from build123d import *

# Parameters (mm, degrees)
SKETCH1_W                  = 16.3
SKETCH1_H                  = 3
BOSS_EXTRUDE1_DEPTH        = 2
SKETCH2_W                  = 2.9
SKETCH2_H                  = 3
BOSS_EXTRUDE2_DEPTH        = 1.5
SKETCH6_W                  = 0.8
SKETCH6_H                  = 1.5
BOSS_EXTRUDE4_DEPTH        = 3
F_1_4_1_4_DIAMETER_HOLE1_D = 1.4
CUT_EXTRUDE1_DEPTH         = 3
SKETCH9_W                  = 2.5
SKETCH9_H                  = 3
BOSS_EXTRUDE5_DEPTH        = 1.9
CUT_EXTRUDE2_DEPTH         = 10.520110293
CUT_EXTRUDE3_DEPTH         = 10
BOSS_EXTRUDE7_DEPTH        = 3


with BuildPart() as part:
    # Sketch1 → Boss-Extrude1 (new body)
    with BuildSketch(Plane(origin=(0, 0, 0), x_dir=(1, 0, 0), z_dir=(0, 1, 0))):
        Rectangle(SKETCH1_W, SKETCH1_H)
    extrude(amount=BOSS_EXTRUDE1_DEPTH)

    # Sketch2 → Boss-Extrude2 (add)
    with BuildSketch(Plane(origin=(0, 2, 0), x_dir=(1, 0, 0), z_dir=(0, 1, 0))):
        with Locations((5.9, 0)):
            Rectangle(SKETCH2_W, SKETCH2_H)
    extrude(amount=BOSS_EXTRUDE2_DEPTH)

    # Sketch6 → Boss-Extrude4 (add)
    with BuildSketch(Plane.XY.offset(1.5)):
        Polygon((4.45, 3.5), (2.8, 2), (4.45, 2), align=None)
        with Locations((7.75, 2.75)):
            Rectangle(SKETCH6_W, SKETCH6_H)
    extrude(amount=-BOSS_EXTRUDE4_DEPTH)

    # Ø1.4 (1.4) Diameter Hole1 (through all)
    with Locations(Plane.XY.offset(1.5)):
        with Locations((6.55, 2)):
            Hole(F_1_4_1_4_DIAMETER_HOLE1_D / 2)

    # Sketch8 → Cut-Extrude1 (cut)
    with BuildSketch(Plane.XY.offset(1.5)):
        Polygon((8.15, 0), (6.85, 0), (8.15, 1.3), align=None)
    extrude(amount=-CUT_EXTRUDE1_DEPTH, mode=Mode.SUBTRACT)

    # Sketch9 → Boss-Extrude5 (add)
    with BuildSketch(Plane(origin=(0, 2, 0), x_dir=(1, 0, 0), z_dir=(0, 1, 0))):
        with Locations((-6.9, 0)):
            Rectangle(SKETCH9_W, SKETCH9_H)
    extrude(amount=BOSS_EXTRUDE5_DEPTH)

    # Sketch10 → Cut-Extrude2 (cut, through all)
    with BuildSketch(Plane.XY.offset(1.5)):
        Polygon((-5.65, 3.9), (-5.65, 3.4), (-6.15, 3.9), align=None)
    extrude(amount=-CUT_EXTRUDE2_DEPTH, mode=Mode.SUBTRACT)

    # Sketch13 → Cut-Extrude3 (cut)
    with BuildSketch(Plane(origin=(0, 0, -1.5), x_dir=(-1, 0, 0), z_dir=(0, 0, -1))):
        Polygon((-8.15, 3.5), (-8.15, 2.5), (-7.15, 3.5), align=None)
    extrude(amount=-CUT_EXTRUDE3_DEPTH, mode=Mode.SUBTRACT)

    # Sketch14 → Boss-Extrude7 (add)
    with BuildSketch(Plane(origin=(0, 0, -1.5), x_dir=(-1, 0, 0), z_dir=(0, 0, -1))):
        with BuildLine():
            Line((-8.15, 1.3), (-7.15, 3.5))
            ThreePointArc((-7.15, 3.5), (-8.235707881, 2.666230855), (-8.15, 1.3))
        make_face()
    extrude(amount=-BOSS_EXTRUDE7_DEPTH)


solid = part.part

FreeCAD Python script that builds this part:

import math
import FreeCAD as App
import Part
import Sketcher


def add_polygon(sketch, points):
    """Adds a closed chain of lines whose ends are joined by coincident constraints."""
    first, n = sketch.GeometryCount, len(points)
    for a, b in zip(points, points[1:] + points[:1]):
        sketch.addGeometry(Part.LineSegment(App.Vector(*a, 0), App.Vector(*b, 0)), False)
    for i in range(n):
        sketch.addConstraint(Sketcher.Constraint("Coincident", first + i, 2, first + (i + 1) % n, 1))

doc = App.newDocument("Part")
body = doc.addObject("PartDesign::Body", "Body")

sketch1 = doc.addObject("Sketcher::SketchObject", "Sketch")
body.addObject(sketch1)
sketch1.AttachmentSupport = (doc.XZ_Plane, [""])
sketch1.MapMode = "FlatFace"
add_polygon(sketch1, [(-8.2, -1.5), (-8.2, 1.5), (8.2, 1.5), (8.2, -1.5)])
sketch1.addConstraint(Sketcher.Constraint("Vertical", 0))
sketch1.addConstraint(Sketcher.Constraint("Horizontal", 1))
sketch1.addConstraint(Sketcher.Constraint("Vertical", 2))
sketch1.addConstraint(Sketcher.Constraint("Horizontal", 3))
sketch1.addConstraint(Sketcher.Constraint("Symmetric", 0, 2, 2, 2, -1, 1))
sketch1.addConstraint(Sketcher.Constraint("DistanceY", 0, 1, 0, 2, 3.0))
sketch1.addConstraint(Sketcher.Constraint("DistanceX", 1, 1, 1, 2, 16.3))
pad1 = doc.addObject("PartDesign::Pad", "Pad")
body.addObject(pad1)
pad1.Profile = sketch1
pad1.Length = 2
pad1.Reversed = True

sketch2 = doc.addObject("Sketcher::SketchObject", "Sketch001")
body.addObject(sketch2)
sketch2.AttachmentSupport = (doc.XZ_Plane, [""])
sketch2.MapMode = "FlatFace"
sketch2.AttachmentOffset = App.Placement(App.Vector(0, 0, -2), App.Rotation())
add_polygon(sketch2, [(4.5, -1.5), (4.5, 1.5), (7.3, 1.5), (7.3, -1.5)])
sketch2.addConstraint(Sketcher.Constraint("Vertical", 0))
sketch2.addConstraint(Sketcher.Constraint("Horizontal", 1))
sketch2.addConstraint(Sketcher.Constraint("Vertical", 2))
sketch2.addConstraint(Sketcher.Constraint("Horizontal", 3))
sketch2.addConstraint(Sketcher.Constraint("DistanceY", 0, 1, 0, 2, 3.0))
sketch2.addConstraint(Sketcher.Constraint("DistanceX", 1, 1, 1, 2, 2.9))
sketch2.addConstraint(Sketcher.Constraint("DistanceY", -1, 1, 0, 2, 1.5))
sketch2.addConstraint(Sketcher.Constraint("DistanceX", -1, 1, 0, 2, 4.45))
pad2 = doc.addObject("PartDesign::Pad", "Pad001")
body.addObject(pad2)
pad2.Profile = sketch2
pad2.Length = 1.5
pad2.Reversed = True

sketch3 = doc.addObject("Sketcher::SketchObject", "Sketch002")
body.addObject(sketch3)
sketch3.AttachmentSupport = (doc.XY_Plane, [""])
sketch3.MapMode = "FlatFace"
sketch3.AttachmentOffset = App.Placement(App.Vector(0, 0, 1.5), App.Rotation())
add_polygon(sketch3, [(4.5, 3.5), (2.8, 2), (4.5, 2)])
add_polygon(sketch3, [(7.3, 3.5), (7.3, 2), (8.2, 2), (8.2, 3.5)])
sketch3.addConstraint(Sketcher.Constraint("Horizontal", 1))
sketch3.addConstraint(Sketcher.Constraint("Vertical", 2))
sketch3.addConstraint(Sketcher.Constraint("Vertical", 3))
sketch3.addConstraint(Sketcher.Constraint("Horizontal", 4))
sketch3.addConstraint(Sketcher.Constraint("Vertical", 5))
sketch3.addConstraint(Sketcher.Constraint("Horizontal", 6))
sketch3.addConstraint(Sketcher.Constraint("Horizontal", 1, 2, 3, 2))
sketch3.addConstraint(Sketcher.Constraint("Horizontal", 2, 2, 5, 2))
sketch3.addConstraint(Sketcher.Constraint("DistanceX", 4, 1, 4, 2, 0.8))
sketch3.addConstraint(Sketcher.Constraint("DistanceY", 2, 1, 2, 2, 1.5))
sketch3.addConstraint(Sketcher.Constraint("DistanceY", -1, 1, 0, 2, 2.0))
sketch3.addConstraint(Sketcher.Constraint("DistanceX", 1, 1, 1, 2, 1.65))
sketch3.addConstraint(Sketcher.Constraint("DistanceX", -1, 1, 0, 2, 2.8))
sketch3.addConstraint(Sketcher.Constraint("DistanceX", 1, 2, 3, 2, 2.9))
pad3 = doc.addObject("PartDesign::Pad", "Pad002")
body.addObject(pad3)
pad3.Profile = sketch3
pad3.Length = 3
pad3.Reversed = True

sketch4 = doc.addObject("Sketcher::SketchObject", "Sketch003")
body.addObject(sketch4)
sketch4.AttachmentSupport = (doc.XY_Plane, [""])
sketch4.MapMode = "FlatFace"
sketch4.AttachmentOffset = App.Placement(App.Vector(0, 0, 1.5), App.Rotation())
sketch4.addGeometry(Part.Circle(App.Vector(6.5, 2, 0), App.Vector(0, 0, 1), 0.7), False)
sketch4.addConstraint(Sketcher.Constraint("Diameter", 0, 1.4))
sketch4.addConstraint(Sketcher.Constraint("DistanceY", -1, 1, 0, 3, 2.0))
sketch4.addConstraint(Sketcher.Constraint("DistanceX", -1, 1, 0, 3, 6.55))
doc.recompute()
hole = doc.addObject("PartDesign::Hole", "Hole")
body.addObject(hole)
hole.Profile = sketch4
hole.ThreadType = "None"
hole.Diameter = 1.4
hole.DepthType = "ThroughAll"

sketch5 = doc.addObject("Sketcher::SketchObject", "Sketch004")
body.addObject(sketch5)
sketch5.AttachmentSupport = (doc.XY_Plane, [""])
sketch5.MapMode = "FlatFace"
sketch5.AttachmentOffset = App.Placement(App.Vector(0, 0, 1.5), App.Rotation())
add_polygon(sketch5, [(6.8, 0), (8.2, 0), (8.2, 1.3)])
sketch5.addConstraint(Sketcher.Constraint("Horizontal", 0))
sketch5.addConstraint(Sketcher.Constraint("Vertical", 1))
sketch5.addConstraint(Sketcher.Constraint("PointOnObject", 0, 2, -1))
sketch5.addConstraint(Sketcher.Constraint("Equal", 0, 1))
sketch5.addConstraint(Sketcher.Constraint("DistanceX", 0, 1, 0, 2, 1.3))
sketch5.addConstraint(Sketcher.Constraint("DistanceX", -1, 1, 0, 2, 8.15))
pocket1 = doc.addObject("PartDesign::Pocket", "Pocket")
body.addObject(pocket1)
pocket1.Profile = sketch5
pocket1.Length = 3

sketch6 = doc.addObject("Sketcher::SketchObject", "Sketch005")
body.addObject(sketch6)
sketch6.AttachmentSupport = (doc.XZ_Plane, [""])
sketch6.MapMode = "FlatFace"
sketch6.AttachmentOffset = App.Placement(App.Vector(0, 0, -2), App.Rotation())
add_polygon(sketch6, [(-8.2, -1.5), (-8.2, 1.5), (-5.7, 1.5), (-5.7, -1.5)])
sketch6.addConstraint(Sketcher.Constraint("Vertical", 0))
sketch6.addConstraint(Sketcher.Constraint("Horizontal", 1))
sketch6.addConstraint(Sketcher.Constraint("Vertical", 2))
sketch6.addConstraint(Sketcher.Constraint("Horizontal", 3))
sketch6.addConstraint(Sketcher.Constraint("DistanceY", 0, 1, 0, 2, 3.0))
sketch6.addConstraint(Sketcher.Constraint("DistanceX", 1, 1, 1, 2, 2.5))
sketch6.addConstraint(Sketcher.Constraint("DistanceY", -1, 1, 0, 2, 1.5))
sketch6.addConstraint(Sketcher.Constraint("DistanceX", 0, 2, -1, 1, 8.15))
pad4 = doc.addObject("PartDesign::Pad", "Pad003")
body.addObject(pad4)
pad4.Profile = sketch6
pad4.Length = 1.9
pad4.Reversed = True

sketch7 = doc.addObject("Sketcher::SketchObject", "Sketch006")
body.addObject(sketch7)
sketch7.AttachmentSupport = (doc.XY_Plane, [""])
sketch7.MapMode = "FlatFace"
sketch7.AttachmentOffset = App.Placement(App.Vector(0, 0, 1.5), App.Rotation())
add_polygon(sketch7, [(-5.7, 3.4), (-5.7, 3.9), (-6.2, 3.9)])
sketch7.addConstraint(Sketcher.Constraint("Vertical", 0))
sketch7.addConstraint(Sketcher.Constraint("Horizontal", 1))
sketch7.addConstraint(Sketcher.Constraint("Equal", 1, 0))
sketch7.addConstraint(Sketcher.Constraint("DistanceX", 1, 2, 1, 1, 0.5))
sketch7.addConstraint(Sketcher.Constraint("DistanceY", -1, 1, 0, 2, 3.9))
sketch7.addConstraint(Sketcher.Constraint("DistanceX", 0, 2, -1, 1, 5.65))
pocket2 = doc.addObject("PartDesign::Pocket", "Pocket001")
body.addObject(pocket2)
pocket2.Profile = sketch7
pocket2.Type = "ThroughAll"

sketch8 = doc.addObject("Sketcher::SketchObject", "Sketch007")
body.addObject(sketch8)
sketch8.AttachmentSupport = (doc.XY_Plane, [""])
sketch8.MapMode = "FlatFace"
sketch8.AttachmentOffset = App.Placement(App.Vector(0, 0, -1.5), App.Rotation())
add_polygon(sketch8, [(8.2, 3.5), (8.2, 2.5), (7.2, 3.5)])
sketch8.addConstraint(Sketcher.Constraint("Vertical", 0))
sketch8.addConstraint(Sketcher.Constraint("Horizontal", 2))
sketch8.addConstraint(Sketcher.Constraint("Equal", 2, 0))
sketch8.addConstraint(Sketcher.Constraint("DistanceX", 2, 1, 2, 2, 1.0))
sketch8.addConstraint(Sketcher.Constraint("DistanceY", -1, 1, 0, 2, 2.5))
sketch8.addConstraint(Sketcher.Constraint("DistanceX", -1, 1, 0, 2, 8.15))
pocket3 = doc.addObject("PartDesign::Pocket", "Pocket002")
body.addObject(pocket3)
pocket3.Profile = sketch8
pocket3.Length = 10
pocket3.Reversed = True

sketch9 = doc.addObject("Sketcher::SketchObject", "Sketch008")
body.addObject(sketch9)
sketch9.AttachmentSupport = (doc.XY_Plane, [""])
sketch9.MapMode = "FlatFace"
sketch9.AttachmentOffset = App.Placement(App.Vector(0, 0, -1.5), App.Rotation())
sketch9.addGeometry(Part.LineSegment(App.Vector(8.2, 1.3, 0), App.Vector(7.2, 3.5, 0)), False)
sketch9.addGeometry(Part.ArcOfCircle(Part.Circle(App.Vector(6.9, 2.1, 0), App.Vector(0, 0, 1), 1.5), math.radians(-32), math.radians(81)), False)
sketch9.addConstraint(Sketcher.Constraint("Coincident", 0, 1, 1, 1))
sketch9.addConstraint(Sketcher.Constraint("Coincident", 1, 2, 0, 2))
sketch9.addConstraint(Sketcher.Constraint("DistanceX", 1, 2, 0, 1, 1.0))
sketch9.addConstraint(Sketcher.Constraint("DistanceY", -1, 1, 0, 1, 1.3))
sketch9.addConstraint(Sketcher.Constraint("DistanceY", -1, 1, 1, 2, 3.5))
sketch9.addConstraint(Sketcher.Constraint("DistanceX", -1, 1, 0, 1, 8.15))
sketch9.addConstraint(Sketcher.Constraint("Radius", 1, 1.456328))
pad5 = doc.addObject("PartDesign::Pad", "Pad004")
body.addObject(pad5)
pad5.Profile = sketch9
pad5.Length = 3

doc.recompute()
